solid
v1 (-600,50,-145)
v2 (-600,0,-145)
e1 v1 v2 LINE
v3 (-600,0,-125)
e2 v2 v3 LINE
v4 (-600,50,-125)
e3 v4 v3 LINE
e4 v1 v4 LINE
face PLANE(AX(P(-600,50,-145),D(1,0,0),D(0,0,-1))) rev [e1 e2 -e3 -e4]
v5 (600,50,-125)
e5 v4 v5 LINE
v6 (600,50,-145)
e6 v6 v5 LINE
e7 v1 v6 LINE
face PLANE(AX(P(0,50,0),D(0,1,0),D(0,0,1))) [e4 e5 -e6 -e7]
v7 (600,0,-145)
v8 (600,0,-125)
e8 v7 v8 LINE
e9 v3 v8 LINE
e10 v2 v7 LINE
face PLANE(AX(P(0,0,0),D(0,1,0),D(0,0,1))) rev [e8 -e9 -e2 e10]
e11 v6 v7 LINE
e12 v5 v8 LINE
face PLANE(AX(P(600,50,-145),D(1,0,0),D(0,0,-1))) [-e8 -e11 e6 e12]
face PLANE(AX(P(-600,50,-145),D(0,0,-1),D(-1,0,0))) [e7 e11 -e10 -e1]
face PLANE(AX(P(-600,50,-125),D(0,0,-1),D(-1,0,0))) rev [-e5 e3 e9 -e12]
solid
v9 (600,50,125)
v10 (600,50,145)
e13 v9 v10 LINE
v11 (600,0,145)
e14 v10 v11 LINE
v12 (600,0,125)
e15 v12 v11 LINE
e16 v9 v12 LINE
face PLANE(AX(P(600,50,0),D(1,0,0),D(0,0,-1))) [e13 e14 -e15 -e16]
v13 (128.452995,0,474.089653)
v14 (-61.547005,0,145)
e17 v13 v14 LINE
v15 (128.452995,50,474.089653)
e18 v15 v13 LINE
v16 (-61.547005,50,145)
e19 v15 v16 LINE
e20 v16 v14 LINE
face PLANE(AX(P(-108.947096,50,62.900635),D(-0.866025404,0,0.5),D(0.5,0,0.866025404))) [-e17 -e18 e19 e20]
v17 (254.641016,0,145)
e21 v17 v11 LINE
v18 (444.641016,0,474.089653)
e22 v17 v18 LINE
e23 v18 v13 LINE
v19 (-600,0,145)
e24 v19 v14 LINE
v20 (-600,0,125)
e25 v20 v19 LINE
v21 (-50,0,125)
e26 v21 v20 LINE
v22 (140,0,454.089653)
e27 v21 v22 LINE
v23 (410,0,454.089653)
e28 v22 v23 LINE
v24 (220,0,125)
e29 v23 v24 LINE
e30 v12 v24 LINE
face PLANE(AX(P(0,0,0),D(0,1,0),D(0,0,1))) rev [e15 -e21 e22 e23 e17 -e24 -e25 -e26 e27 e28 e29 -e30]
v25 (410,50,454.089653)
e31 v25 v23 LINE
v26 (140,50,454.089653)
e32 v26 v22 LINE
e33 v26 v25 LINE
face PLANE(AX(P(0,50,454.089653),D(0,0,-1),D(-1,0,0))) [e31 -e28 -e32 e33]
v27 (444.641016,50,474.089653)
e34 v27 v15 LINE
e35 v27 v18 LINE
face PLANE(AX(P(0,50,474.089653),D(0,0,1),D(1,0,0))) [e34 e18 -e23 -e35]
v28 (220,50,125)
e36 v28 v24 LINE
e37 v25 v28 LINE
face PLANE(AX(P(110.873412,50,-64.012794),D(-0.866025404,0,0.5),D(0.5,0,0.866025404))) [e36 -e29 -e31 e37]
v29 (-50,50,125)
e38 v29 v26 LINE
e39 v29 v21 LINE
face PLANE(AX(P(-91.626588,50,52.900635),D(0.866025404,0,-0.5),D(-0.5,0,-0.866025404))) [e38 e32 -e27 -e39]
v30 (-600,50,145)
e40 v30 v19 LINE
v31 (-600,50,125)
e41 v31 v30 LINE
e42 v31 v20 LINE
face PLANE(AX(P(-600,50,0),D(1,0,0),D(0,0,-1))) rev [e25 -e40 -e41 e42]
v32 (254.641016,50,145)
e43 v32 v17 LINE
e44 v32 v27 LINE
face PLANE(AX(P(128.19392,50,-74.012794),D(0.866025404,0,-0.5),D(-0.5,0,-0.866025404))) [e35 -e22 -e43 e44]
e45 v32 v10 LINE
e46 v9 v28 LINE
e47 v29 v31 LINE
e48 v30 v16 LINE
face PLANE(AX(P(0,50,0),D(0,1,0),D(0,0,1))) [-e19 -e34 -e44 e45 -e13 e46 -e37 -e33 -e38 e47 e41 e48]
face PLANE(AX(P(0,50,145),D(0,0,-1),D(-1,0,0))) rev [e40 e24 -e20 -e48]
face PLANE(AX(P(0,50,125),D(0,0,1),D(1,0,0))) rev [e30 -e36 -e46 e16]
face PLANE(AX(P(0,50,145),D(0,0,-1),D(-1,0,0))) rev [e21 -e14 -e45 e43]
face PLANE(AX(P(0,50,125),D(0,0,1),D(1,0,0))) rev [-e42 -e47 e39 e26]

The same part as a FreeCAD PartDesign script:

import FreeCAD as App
import Part
import Sketcher
Q = App.Units.Quantity

doc = App.newDocument("Part")
body = doc.addObject("PartDesign::Body", "Body")

# Sketch on XZ plane
sketch1 = body.newObject("Sketcher::SketchObject", "Sketch")
sketch1.AttachmentSupport = (doc.getObject("XZ_Plane"), [""])
sketch1.MapMode = "FlatFace"
sketch1.addGeometry(Part.LineSegment(App.Vector(140, 454, 0), App.Vector(-50, 125, 0)), False)
sketch1.addGeometry(Part.LineSegment(App.Vector(-50, 125, 0), App.Vector(-600, 125, 0)), False)
sketch1.addGeometry(Part.LineSegment(App.Vector(-600, 125, 0), App.Vector(-600, 145, 0)), False)
sketch1.addGeometry(Part.LineSegment(App.Vector(-600, 145, 0), App.Vector(-62, 145, 0)), False)
sketch1.addGeometry(Part.LineSegment(App.Vector(-62, 145, 0), App.Vector(128, 474, 0)), False)
sketch1.addGeometry(Part.LineSegment(App.Vector(128, 474, 0), App.Vector(445, 474, 0)), False)
sketch1.addGeometry(Part.LineSegment(App.Vector(445, 474, 0), App.Vector(255, 145, 0)), False)
sketch1.addGeometry(Part.LineSegment(App.Vector(255, 145, 0), App.Vector(600, 145, 0)), False)
sketch1.addGeometry(Part.LineSegment(App.Vector(600, 145, 0), App.Vector(600, 125, 0)), False)
sketch1.addGeometry(Part.LineSegment(App.Vector(600, 125, 0), App.Vector(220, 125, 0)), False)
sketch1.addGeometry(Part.LineSegment(App.Vector(220, 125, 0), App.Vector(410, 454, 0)), False)
sketch1.addGeometry(Part.LineSegment(App.Vector(410, 454, 0), App.Vector(140, 454, 0)), False)
sketch1.addConstraint(Sketcher.Constraint("Coincident", 0, 2, 1, 1))
sketch1.addConstraint(Sketcher.Constraint("Coincident", 1, 2, 2, 1))
sketch1.addConstraint(Sketcher.Constraint("Coincident", 2, 2, 3, 1))
sketch1.addConstraint(Sketcher.Constraint("Coincident", 3, 2, 4, 1))
sketch1.addConstraint(Sketcher.Constraint("Coincident", 4, 2, 5, 1))
sketch1.addConstraint(Sketcher.Constraint("Coincident", 5, 2, 6, 1))
sketch1.addConstraint(Sketcher.Constraint("Coincident", 6, 2, 7, 1))
sketch1.addConstraint(Sketcher.Constraint("Coincident", 7, 2, 8, 1))
sketch1.addConstraint(Sketcher.Constraint("Coincident", 8, 2, 9, 1))
sketch1.addConstraint(Sketcher.Constraint("Coincident", 9, 2, 10, 1))
sketch1.addConstraint(Sketcher.Constraint("Coincident", 10, 2, 11, 1))
sketch1.addConstraint(Sketcher.Constraint("Coincident", 11, 2, 0, 1))
sketch1.addConstraint(Sketcher.Constraint("Horizontal", 1))
sketch1.addConstraint(Sketcher.Constraint("Vertical", 2))
sketch1.addConstraint(Sketcher.Constraint("Horizontal", 3))
sketch1.addConstraint(Sketcher.Constraint("Horizontal", 5))
sketch1.addConstraint(Sketcher.Constraint("Horizontal", 7))
sketch1.addConstraint(Sketcher.Constraint("Vertical", 8))
sketch1.addConstraint(Sketcher.Constraint("Horizontal", 9))
sketch1.addConstraint(Sketcher.Constraint("Horizontal", 11))
sketch1.addConstraint(Sketcher.Constraint("Symmetric", 2, 2, 7, 2, -2))
sketch1.addConstraint(Sketcher.Constraint("Parallel", 0, 4))
sketch1.addConstraint(Sketcher.Constraint("Parallel", 4, 6))
sketch1.addConstraint(Sketcher.Constraint("Parallel", 6, 10))
sketch1.addConstraint(Sketcher.Constraint("Horizontal", 1, 2, 8, 2))
sketch1.addConstraint(Sketcher.Constraint("Equal", 0, 4))
sketch1.addConstraint(Sketcher.Constraint("DistanceX", 1, 2, 1, 1, 550.0))
sketch1.addConstraint(Sketcher.Constraint("DistanceX", 9, 2, 9, 1, 380.0))
sketch1.addConstraint(Sketcher.Constraint("DistanceX", 11, 2, 11, 1, 270.0))
sketch1.addConstraint(Sketcher.Constraint("DistanceY", 2, 1, 2, 2, 20.0))
sketch1.addConstraint(Sketcher.Constraint("Angle", 0, Q("-120 deg")))
sketch1.addConstraint(Sketcher.Constraint("Distance", 0, 380.0))
sketch1.addConstraint(Sketcher.Constraint("DistanceY", -1, 1, 0, 2, 125.0))
sketch1.addConstraint(Sketcher.Constraint("DistanceX", 5, 1, 5, 2, 316.188022))
sketch1.addConstraint(Sketcher.Constraint("DistanceX", 3, 1, 3, 2, 538.452995))
pad1 = body.newObject("PartDesign::Pad", "Pad")
pad1.Profile = sketch1
pad1.Length = 50
pad1.Reversed = True
body2 = doc.addObject("PartDesign::Body", "Body001")

# Sketch on XZ plane
sketch2 = body2.newObject("Sketcher::SketchObject", "Sketch001")
sketch2.AttachmentSupport = (doc.getObject("XZ_Plane001"), [""])
sketch2.MapMode = "FlatFace"
sketch2.addGeometry(Part.LineSegment(App.Vector(-600, -145, 0), App.Vector(-600, -125, 0)), False)
sketch2.addGeometry(Part.LineSegment(App.Vector(-600, -125, 0), App.Vector(600, -125, 0)), False)
sketch2.addGeometry(Part.LineSegment(App.Vector(600, -125, 0), App.Vector(600, -145, 0)), False)
sketch2.addGeometry(Part.LineSegment(App.Vector(600, -145, 0), App.Vector(-600, -145, 0)), False)
sketch2.addConstraint(Sketcher.Constraint("Coincident", 0, 2, 1, 1))
sketch2.addConstraint(Sketcher.Constraint("Coincident", 1, 2, 2, 1))
sketch2.addConstraint(Sketcher.Constraint("Coincident", 2, 2, 3, 1))
sketch2.addConstraint(Sketcher.Constraint("Coincident", 3, 2, 0, 1))
sketch2.addConstraint(Sketcher.Constraint("Vertical", 0))
sketch2.addConstraint(Sketcher.Constraint("Horizontal", 1))
sketch2.addConstraint(Sketcher.Constraint("Vertical", 2))
sketch2.addConstraint(Sketcher.Constraint("Horizontal", 3))
sketch2.addConstraint(Sketcher.Constraint("DistanceX", 1, 1, 1, 2, 1200.0))
sketch2.addConstraint(Sketcher.Constraint("DistanceY", 0, 1, 0, 2, 20.0))
sketch2.addConstraint(Sketcher.Constraint("DistanceX", 0, 2, -1, 1, 600.0))
sketch2.addConstraint(Sketcher.Constraint("DistanceY", 0, 2, -1, 1, 125.0))
pad2 = body2.newObject("PartDesign::Pad", "Pad001")
pad2.Profile = sketch2
pad2.Length = 50
pad2.Reversed = True

doc.recompute()
